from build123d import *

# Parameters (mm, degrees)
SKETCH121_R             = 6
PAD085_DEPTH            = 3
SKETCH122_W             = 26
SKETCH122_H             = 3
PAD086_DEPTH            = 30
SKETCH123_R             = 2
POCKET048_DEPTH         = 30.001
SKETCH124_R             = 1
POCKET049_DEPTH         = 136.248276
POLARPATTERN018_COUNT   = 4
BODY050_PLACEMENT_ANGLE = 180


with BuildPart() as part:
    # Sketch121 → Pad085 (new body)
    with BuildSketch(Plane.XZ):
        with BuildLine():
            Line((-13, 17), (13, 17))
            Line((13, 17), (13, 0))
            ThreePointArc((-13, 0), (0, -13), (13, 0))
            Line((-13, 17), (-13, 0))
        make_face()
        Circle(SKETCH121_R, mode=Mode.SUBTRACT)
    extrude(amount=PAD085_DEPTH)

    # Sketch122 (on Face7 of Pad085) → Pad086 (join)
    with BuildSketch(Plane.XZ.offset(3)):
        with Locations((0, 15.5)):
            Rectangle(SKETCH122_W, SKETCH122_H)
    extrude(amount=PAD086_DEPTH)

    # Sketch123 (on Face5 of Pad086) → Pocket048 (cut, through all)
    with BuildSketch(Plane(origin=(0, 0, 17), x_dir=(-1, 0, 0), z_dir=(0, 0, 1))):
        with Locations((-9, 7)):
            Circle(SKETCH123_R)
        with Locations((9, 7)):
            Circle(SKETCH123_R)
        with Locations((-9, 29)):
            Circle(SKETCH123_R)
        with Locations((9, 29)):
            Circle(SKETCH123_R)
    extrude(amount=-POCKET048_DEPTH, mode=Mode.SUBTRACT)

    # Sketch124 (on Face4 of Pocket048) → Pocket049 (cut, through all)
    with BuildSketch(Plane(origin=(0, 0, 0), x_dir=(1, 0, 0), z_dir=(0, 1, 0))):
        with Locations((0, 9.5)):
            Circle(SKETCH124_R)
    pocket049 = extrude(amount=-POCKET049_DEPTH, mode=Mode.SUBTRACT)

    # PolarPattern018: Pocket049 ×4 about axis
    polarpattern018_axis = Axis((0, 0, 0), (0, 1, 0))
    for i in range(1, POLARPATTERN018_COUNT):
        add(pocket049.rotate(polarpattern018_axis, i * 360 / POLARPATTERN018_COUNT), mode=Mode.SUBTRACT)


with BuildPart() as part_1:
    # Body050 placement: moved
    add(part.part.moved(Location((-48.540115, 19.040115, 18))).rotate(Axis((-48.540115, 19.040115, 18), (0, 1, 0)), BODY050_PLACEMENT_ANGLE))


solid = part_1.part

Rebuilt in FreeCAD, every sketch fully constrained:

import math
import FreeCAD as App
import Part
import Sketcher
from FreeCAD import Vector
Q = App.Units.Quantity


def add_polygon(sketch, points):
    """Adds a closed chain of lines whose ends are joined by coincident constraints."""
    first, n = sketch.GeometryCount, len(points)
    for a, b in zip(points, points[1:] + points[:1]):
        sketch.addGeometry(Part.LineSegment(App.Vector(*a, 0), App.Vector(*b, 0)), False)
    for i in range(n):
        sketch.addConstraint(Sketcher.Constraint("Coincident", first + i, 2, first + (i + 1) % n, 1))

doc = App.newDocument("Part")
params = doc.addObject("Spreadsheet::Sheet", "Params")
for row, (alias, value) in enumerate([
    ("sketch1_diameter", "12 mm"),
    ("sketch1_radius", "13 mm"),
    ("sketch1_height", "17 mm"),
    ("pad1_length", "3 mm"),
    ("sketch2_width", "26 mm"),
    ("sketch2_height", "3 mm"),
    ("pad2_length", "30 mm"),
    ("sketch3_diameter", "4 mm"),
    ("sketch4_diameter", "2 mm"),
], start=1):
    params.set(f"A{row}", alias)
    params.set(f"B{row}", "=" + value)
    params.setAlias(f"B{row}", alias)

body = doc.addObject("PartDesign::Body", "Body")

sketch1 = doc.addObject("Sketcher::SketchObject", "Sketch")
body.addObject(sketch1)
sketch1.AttachmentSupport = (doc.XZ_Plane, [""])
sketch1.MapMode = "FlatFace"
sketch1.addGeometry(Part.LineSegment(Vector(13, 17, 0), Vector(-13, 17, 0)), False)
sketch1.addGeometry(Part.LineSegment(Vector(-13, 17, 0), Vector(-13, 0, 0)), False)
sketch1.addGeometry(Part.ArcOfCircle(Part.Circle(Vector(0, 0, 0), Vector(0, 0, 1), 13), math.radians(180), math.radians(360)), False)
sketch1.addGeometry(Part.LineSegment(Vector(13, 0, 0), Vector(13, 17, 0)), False)
sketch1.addGeometry(Part.Circle(Vector(0, 0, 0), Vector(0, 0, 1), 6), False)
sketch1.addConstraint(Sketcher.Constraint("Coincident", 0, 2, 1, 1))
sketch1.addConstraint(Sketcher.Constraint("Tangent", 1, 2, 2, 1))
sketch1.addConstraint(Sketcher.Constraint("Tangent", 2, 2, 3, 1))
sketch1.addConstraint(Sketcher.Constraint("Coincident", 3, 2, 0, 1))
sketch1.addConstraint(Sketcher.Constraint("Horizontal", 0))
sketch1.addConstraint(Sketcher.Constraint("Vertical", 1))
sketch1.addConstraint(Sketcher.Constraint("Vertical", 3))
sketch1.addConstraint(Sketcher.Constraint("Coincident", 2, 3, -1, 1))
sketch1.addConstraint(Sketcher.Constraint("Coincident", 4, 3, -1, 1))
sketch1.addConstraint(Sketcher.Constraint("Diameter", 4, Q("12 mm")))
sketch1.addConstraint(Sketcher.Constraint("Radius", 2, Q("13 mm")))
sketch1.addConstraint(Sketcher.Constraint("DistanceY", 1, 2, 1, 1, Q("17 mm")))
sketch1.setExpression("Constraints[9]", "Params.sketch1_diameter")
sketch1.setExpression("Constraints[10]", "Params.sketch1_radius")
sketch1.setExpression("Constraints[11]", "Params.sketch1_height")
pad1 = doc.addObject("PartDesign::Pad", "Pad")
body.addObject(pad1)
pad1.Profile = sketch1
pad1.setExpression("Length", "Params.pad1_length")

sketch2 = doc.addObject("Sketcher::SketchObject", "Sketch001")
body.addObject(sketch2)
sketch2.AttachmentSupport = (doc.XZ_Plane, [""])
sketch2.MapMode = "FlatFace"
sketch2.AttachmentOffset = App.Placement(Vector(0, 0, 3), App.Rotation())
add_polygon(sketch2, [(-13, 17), (-13, 14), (13, 14), (13, 17)])
sketch2.addConstraint(Sketcher.Constraint("Vertical", 0))
sketch2.addConstraint(Sketcher.Constraint("Horizontal", 1))
sketch2.addConstraint(Sketcher.Constraint("Vertical", 2))
sketch2.addConstraint(Sketcher.Constraint("Horizontal", 3))
sketch2.addConstraint(Sketcher.Constraint("DistanceX", 1, 1, 1, 2, Q("26 mm")))
sketch2.addConstraint(Sketcher.Constraint("DistanceY", 0, 2, 0, 1, Q("3 mm")))
sketch2.addConstraint(Sketcher.Constraint("DistanceX", 0, 2, -1, 1, Q("13 mm")))
sketch2.addConstraint(Sketcher.Constraint("DistanceY", -1, 1, 0, 2, Q("14 mm")))
sketch2.setExpression("Constraints[8]", "Params.sketch2_width")
sketch2.setExpression("Constraints[9]", "Params.sketch2_height")
pad2 = doc.addObject("PartDesign::Pad", "Pad001")
body.addObject(pad2)
pad2.Profile = sketch2
pad2.setExpression("Length", "Params.pad2_length")

sketch3 = doc.addObject("Sketcher::SketchObject", "Sketch002")
body.addObject(sketch3)
sketch3.AttachmentSupport = (doc.XY_Plane, [""])
sketch3.MapMode = "FlatFace"
sketch3.AttachmentOffset = App.Placement(Vector(0, 0, 17), App.Rotation())
sketch3.addGeometry(Part.Circle(Vector(9, -7, 0), Vector(0, 0, 1), 2), False)
sketch3.addGeometry(Part.Circle(Vector(-9, -7, 0), Vector(0, 0, 1), 2), False)
sketch3.addGeometry(Part.Circle(Vector(9, -29, 0), Vector(0, 0, 1), 2), False)
sketch3.addGeometry(Part.Circle(Vector(-9, -29, 0), Vector(0, 0, 1), 2), False)
sketch3.addConstraint(Sketcher.Constraint("Equal", 0, 1))
sketch3.addConstraint(Sketcher.Constraint("Equal", 1, 2))
sketch3.addConstraint(Sketcher.Constraint("Equal", 2, 3))
sketch3.addConstraint(Sketcher.Constraint("Symmetric", 0, 3, 1, 3, -2))
sketch3.addConstraint(Sketcher.Constraint("Symmetric", 2, 3, 3, 3, -2))
sketch3.addConstraint(Sketcher.Constraint("Vertical", 0, 3, 2, 3))
sketch3.addConstraint(Sketcher.Constraint("Diameter", 0, Q("4 mm")))
sketch3.addConstraint(Sketcher.Constraint("DistanceX", -1, 1, 0, 3, Q("9 mm")))
sketch3.addConstraint(Sketcher.Constraint("DistanceY", 0, 3, -1, 1, Q("7 mm")))
sketch3.addConstraint(Sketcher.Constraint("DistanceY", 2, 3, -1, 1, Q("29 mm")))
sketch3.setExpression("Constraints[6]", "Params.sketch3_diameter")
pocket1 = doc.addObject("PartDesign::Pocket", "Pocket")
body.addObject(pocket1)
pocket1.Profile = sketch3
pocket1.Type = "ThroughAll"

sketch4 = doc.addObject("Sketcher::SketchObject", "Sketch003")
body.addObject(sketch4)
sketch4.AttachmentSupport = (doc.XZ_Plane, [""])
sketch4.MapMode = "FlatFace"
sketch4.addGeometry(Part.Circle(Vector(0, -9.5, 0), Vector(0, 0, 1), 1), False)
sketch4.addConstraint(Sketcher.Constraint("PointOnObject", 0, 3, -2))
sketch4.addConstraint(Sketcher.Constraint("Diameter", 0, Q("2 mm")))
sketch4.addConstraint(Sketcher.Constraint("DistanceY", 0, 3, -1, 1, Q("9.5 mm")))
sketch4.setExpression("Constraints[1]", "Params.sketch4_diameter")
pocket2 = doc.addObject("PartDesign::Pocket", "Pocket001")
body.addObject(pocket2)
pocket2.Profile = sketch4
pocket2.Type = "ThroughAll"
pocket2.Reversed = True
doc.recompute()

polarpattern = doc.addObject("PartDesign::PolarPattern", "PolarPattern")
body.addObject(polarpattern)
polarpattern.Originals = [pocket2]
polarpattern.Axis = (doc.Y_Axis, [""])
polarpattern.Angle = 360
polarpattern.Occurrences = 4
body.Tip = polarpattern
body2 = doc.addObject("PartDesign::Body", "Body001")
doc.recompute()

body.Placement = App.Placement(Vector(-48.540115, 19.040115, 18), App.Rotation(Vector(0, 1, 0), 180))
boolean = doc.addObject("PartDesign::Boolean", "Boolean")
body2.addObject(boolean)
boolean.Type = "Fuse"
boolean.addObjects([body])

doc.recompute()
